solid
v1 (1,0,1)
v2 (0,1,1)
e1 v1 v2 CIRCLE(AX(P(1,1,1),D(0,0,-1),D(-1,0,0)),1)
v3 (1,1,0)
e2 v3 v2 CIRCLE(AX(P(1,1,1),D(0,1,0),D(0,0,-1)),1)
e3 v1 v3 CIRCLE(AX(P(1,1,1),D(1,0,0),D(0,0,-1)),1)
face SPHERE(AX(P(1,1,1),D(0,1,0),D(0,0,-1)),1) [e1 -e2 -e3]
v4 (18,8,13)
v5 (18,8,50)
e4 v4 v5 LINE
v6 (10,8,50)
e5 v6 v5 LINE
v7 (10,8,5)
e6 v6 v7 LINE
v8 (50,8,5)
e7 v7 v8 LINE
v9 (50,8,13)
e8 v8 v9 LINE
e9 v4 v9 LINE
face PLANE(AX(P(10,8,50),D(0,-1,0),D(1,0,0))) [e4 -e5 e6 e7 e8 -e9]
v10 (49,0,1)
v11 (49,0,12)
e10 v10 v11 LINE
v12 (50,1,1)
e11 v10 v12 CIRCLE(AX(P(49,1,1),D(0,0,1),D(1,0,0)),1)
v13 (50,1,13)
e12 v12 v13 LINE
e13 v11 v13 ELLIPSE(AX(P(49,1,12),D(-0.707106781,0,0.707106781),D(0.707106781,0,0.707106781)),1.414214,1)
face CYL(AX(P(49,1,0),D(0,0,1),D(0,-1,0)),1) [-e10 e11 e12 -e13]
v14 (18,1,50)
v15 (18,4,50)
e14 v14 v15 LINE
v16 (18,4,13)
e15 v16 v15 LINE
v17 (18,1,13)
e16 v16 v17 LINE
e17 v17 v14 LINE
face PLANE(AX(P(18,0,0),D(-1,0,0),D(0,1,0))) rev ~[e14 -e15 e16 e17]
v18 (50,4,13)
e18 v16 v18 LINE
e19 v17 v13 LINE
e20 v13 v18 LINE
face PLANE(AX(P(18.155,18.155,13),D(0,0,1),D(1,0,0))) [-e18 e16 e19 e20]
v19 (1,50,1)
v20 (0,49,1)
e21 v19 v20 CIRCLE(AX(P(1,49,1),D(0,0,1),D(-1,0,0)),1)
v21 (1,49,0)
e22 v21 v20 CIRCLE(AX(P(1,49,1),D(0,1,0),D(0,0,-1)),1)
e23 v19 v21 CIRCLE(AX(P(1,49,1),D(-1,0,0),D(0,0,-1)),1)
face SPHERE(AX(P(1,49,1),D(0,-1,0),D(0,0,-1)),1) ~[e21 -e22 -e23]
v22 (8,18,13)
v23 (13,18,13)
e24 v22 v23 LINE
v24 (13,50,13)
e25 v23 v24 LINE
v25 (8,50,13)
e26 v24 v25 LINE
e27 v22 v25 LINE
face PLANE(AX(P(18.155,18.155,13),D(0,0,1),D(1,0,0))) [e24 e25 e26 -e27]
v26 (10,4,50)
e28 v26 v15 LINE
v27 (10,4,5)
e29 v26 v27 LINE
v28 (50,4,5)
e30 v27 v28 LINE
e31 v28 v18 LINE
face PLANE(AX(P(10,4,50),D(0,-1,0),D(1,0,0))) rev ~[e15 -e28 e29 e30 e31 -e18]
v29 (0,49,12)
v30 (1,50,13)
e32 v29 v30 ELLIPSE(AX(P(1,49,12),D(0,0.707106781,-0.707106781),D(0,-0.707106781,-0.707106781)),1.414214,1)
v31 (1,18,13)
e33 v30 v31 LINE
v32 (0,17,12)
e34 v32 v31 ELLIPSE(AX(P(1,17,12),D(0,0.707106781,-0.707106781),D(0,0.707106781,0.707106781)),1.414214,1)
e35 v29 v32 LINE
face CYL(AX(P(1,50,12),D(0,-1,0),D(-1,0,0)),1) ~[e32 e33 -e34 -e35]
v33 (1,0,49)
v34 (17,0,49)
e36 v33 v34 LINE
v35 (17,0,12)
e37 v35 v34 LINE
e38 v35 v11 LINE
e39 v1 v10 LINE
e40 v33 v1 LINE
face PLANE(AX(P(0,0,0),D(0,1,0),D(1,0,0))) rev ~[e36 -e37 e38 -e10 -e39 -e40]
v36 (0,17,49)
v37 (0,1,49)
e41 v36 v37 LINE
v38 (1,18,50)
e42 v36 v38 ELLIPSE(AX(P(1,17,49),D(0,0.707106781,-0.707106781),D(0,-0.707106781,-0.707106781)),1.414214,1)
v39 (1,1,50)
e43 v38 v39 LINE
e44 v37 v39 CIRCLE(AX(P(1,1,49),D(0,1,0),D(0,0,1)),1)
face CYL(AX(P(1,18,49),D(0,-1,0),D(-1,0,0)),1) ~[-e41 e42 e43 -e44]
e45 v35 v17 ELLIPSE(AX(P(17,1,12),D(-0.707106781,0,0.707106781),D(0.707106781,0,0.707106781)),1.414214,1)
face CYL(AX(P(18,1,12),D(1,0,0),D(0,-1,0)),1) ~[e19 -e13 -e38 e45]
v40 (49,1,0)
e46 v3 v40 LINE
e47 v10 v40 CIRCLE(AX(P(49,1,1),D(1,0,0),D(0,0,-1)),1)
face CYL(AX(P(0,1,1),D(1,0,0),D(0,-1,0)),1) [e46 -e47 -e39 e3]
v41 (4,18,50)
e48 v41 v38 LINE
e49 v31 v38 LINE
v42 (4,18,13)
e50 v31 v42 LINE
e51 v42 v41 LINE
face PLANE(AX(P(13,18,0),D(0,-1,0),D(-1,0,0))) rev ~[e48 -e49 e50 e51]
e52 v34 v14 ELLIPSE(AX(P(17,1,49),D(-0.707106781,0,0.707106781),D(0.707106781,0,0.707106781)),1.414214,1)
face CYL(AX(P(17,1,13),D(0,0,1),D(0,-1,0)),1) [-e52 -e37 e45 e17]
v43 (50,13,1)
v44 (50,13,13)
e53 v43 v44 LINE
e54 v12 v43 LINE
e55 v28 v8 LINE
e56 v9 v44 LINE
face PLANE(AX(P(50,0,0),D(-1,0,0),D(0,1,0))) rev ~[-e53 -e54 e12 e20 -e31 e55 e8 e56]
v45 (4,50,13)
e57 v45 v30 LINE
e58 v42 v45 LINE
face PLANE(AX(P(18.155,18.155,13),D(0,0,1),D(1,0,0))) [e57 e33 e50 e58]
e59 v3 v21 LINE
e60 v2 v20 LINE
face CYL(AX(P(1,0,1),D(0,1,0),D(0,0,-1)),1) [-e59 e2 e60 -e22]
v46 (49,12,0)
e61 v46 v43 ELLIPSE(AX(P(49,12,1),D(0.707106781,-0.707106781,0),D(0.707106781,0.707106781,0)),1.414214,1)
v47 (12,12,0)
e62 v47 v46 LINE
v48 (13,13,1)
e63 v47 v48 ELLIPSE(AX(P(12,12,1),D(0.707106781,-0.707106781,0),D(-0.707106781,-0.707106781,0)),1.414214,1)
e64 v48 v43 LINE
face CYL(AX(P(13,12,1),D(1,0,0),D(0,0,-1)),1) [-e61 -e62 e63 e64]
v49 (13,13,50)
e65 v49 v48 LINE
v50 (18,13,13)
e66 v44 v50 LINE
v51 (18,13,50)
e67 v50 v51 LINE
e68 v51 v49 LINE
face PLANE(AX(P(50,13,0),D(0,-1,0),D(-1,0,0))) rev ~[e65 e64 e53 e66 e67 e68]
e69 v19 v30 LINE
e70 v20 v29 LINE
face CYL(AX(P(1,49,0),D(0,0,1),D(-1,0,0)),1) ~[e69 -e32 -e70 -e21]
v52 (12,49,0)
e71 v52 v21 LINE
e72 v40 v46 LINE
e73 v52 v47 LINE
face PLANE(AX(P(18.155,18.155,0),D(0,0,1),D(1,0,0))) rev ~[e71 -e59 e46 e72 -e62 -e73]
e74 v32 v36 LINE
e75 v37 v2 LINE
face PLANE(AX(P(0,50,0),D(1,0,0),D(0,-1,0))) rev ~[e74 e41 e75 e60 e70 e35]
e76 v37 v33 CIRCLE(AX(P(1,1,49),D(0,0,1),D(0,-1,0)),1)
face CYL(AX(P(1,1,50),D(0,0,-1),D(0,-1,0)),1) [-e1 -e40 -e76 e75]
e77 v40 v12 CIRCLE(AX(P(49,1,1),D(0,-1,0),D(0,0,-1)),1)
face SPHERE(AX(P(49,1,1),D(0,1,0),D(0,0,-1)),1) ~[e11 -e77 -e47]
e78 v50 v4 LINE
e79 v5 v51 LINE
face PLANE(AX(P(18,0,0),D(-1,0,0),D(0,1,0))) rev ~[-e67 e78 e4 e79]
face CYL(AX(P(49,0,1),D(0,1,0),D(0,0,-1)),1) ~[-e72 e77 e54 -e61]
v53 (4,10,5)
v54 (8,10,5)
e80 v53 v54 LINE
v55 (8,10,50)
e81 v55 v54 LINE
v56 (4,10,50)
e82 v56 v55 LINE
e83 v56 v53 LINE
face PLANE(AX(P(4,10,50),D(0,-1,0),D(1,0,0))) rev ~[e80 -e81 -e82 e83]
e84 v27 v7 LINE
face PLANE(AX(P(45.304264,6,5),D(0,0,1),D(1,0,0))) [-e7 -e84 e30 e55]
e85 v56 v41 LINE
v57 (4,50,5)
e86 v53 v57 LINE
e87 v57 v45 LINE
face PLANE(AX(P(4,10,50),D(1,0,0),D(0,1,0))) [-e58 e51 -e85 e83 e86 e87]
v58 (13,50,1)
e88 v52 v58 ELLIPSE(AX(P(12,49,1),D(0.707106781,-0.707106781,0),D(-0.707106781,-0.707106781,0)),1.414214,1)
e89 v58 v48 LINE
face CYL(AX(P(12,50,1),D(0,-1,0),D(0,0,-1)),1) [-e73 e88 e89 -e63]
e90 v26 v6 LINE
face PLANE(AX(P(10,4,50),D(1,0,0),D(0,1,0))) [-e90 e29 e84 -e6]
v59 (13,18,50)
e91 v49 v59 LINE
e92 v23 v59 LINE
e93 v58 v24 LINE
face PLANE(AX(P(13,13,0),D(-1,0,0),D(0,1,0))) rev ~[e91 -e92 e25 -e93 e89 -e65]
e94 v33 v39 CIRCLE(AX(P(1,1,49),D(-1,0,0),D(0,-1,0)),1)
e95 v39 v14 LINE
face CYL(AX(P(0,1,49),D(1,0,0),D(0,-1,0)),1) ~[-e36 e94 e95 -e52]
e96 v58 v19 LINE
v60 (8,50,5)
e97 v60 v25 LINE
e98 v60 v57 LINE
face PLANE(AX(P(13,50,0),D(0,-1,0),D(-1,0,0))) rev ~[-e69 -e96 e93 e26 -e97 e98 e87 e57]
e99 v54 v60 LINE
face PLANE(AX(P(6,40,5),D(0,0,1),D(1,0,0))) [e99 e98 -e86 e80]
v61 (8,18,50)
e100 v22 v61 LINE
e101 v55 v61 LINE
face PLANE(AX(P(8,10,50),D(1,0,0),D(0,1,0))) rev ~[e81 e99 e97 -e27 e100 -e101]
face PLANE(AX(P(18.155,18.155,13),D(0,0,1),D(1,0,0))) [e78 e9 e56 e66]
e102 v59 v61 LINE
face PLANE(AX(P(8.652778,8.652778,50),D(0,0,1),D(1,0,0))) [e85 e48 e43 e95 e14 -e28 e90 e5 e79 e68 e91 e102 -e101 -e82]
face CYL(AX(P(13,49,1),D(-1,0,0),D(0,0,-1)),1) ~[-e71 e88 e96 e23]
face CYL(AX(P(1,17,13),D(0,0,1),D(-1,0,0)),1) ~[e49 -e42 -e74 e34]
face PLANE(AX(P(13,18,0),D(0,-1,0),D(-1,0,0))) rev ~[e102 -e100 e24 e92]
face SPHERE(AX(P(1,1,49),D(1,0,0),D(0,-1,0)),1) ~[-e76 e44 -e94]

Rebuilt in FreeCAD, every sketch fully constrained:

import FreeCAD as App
import Part
import Sketcher

V = App.Vector
Q = App.Units.Quantity


def edges_at(feature, points):
    """Names of the edges that pass closest to the given points."""
    edges = feature.Shape.Edges
    near = lambda p: min(range(len(edges)), key=lambda i: edges[i].distToShape(Part.Vertex(*p))[0])
    return sorted({f"Edge{near(p) + 1}" for p in points})

doc = App.newDocument("Part")
params = doc.addObject("Spreadsheet::Sheet", "Params")
for row, (alias, value) in enumerate([
    ("sketch1_width", "50 mm"),
    ("sketch1_width2", "37 mm"),
    ("pad1_length", "13 mm"),
    ("sketch2_width", "18 mm"),
    ("sketch2_width2", "5 mm"),
    ("pad2_length", "50 mm"),
    ("sketch3_width", "4 mm"),
    ("sketch3_height", "60 mm"),
    ("pocket1_length", "45 mm"),
    ("fillet_radius", "1 mm"),
], start=1):
    params.set(f"A{row}", alias)
    params.set(f"B{row}", "=" + value)
    params.setAlias(f"B{row}", alias)

body = doc.addObject("PartDesign::Body", "Body")

sketch1 = doc.addObject("Sketcher::SketchObject", "Sketch")
body.addObject(sketch1)
sketch1.AttachmentSupport = (doc.XY_Plane, [""])
sketch1.MapMode = "FlatFace"
sketch1.addGeometry(Part.LineSegment(V(0, 0, 0), V(50, 0, 0)), False)
sketch1.addGeometry(Part.LineSegment(V(50, 0, 0), V(50, 13, 0)), False)
sketch1.addGeometry(Part.LineSegment(V(50, 13, 0), V(13, 13, 0)), False)
sketch1.addGeometry(Part.LineSegment(V(13, 13, 0), V(13, 50, 0)), False)
sketch1.addGeometry(Part.LineSegment(V(13, 50, 0), V(0, 50, 0)), False)
sketch1.addGeometry(Part.LineSegment(V(0, 50, 0), V(0, 0, 0)), False)
sketch1.addConstraint(Sketcher.Constraint("Coincident", 0, 2, 1, 1))
sketch1.addConstraint(Sketcher.Constraint("Coincident", 1, 2, 2, 1))
sketch1.addConstraint(Sketcher.Constraint("Coincident", 2, 2, 3, 1))
sketch1.addConstraint(Sketcher.Constraint("Coincident", 3, 2, 4, 1))
sketch1.addConstraint(Sketcher.Constraint("Coincident", 4, 2, 5, 1))
sketch1.addConstraint(Sketcher.Constraint("Coincident", 5, 2, 0, 1))
sketch1.addConstraint(Sketcher.Constraint("Horizontal", 0))
sketch1.addConstraint(Sketcher.Constraint("Vertical", 1))
sketch1.addConstraint(Sketcher.Constraint("Horizontal", 2))
sketch1.addConstraint(Sketcher.Constraint("Vertical", 3))
sketch1.addConstraint(Sketcher.Constraint("Horizontal", 4))
sketch1.addConstraint(Sketcher.Constraint("Vertical", 5))
sketch1.addConstraint(Sketcher.Constraint("Coincident", 5, 2, -1, 1))
sketch1.addConstraint(Sketcher.Constraint("Equal", 4, 1))
sketch1.addConstraint(Sketcher.Constraint("Equal", 2, 3))
sketch1.addConstraint(Sketcher.Constraint("DistanceX", 0, 1, 0, 2, Q("50 mm")))
sketch1.addConstraint(Sketcher.Constraint("DistanceX", 2, 2, 2, 1, Q("37 mm")))
sketch1.setExpression("Constraints[15]", "Params.sketch1_width")
sketch1.setExpression("Constraints[16]", "Params.sketch1_width2")
pad1 = doc.addObject("PartDesign::Pad", "Pad")
body.addObject(pad1)
pad1.Profile = sketch1
pad1.setExpression("Length", "Params.pad1_length")

sketch2 = doc.addObject("Sketcher::SketchObject", "Sketch001")
body.addObject(sketch2)
sketch2.AttachmentSupport = (doc.XY_Plane, [""])
sketch2.MapMode = "FlatFace"
sketch2.addGeometry(Part.LineSegment(V(0, 0, 0), V(18, 0, 0)), False)
sketch2.addGeometry(Part.LineSegment(V(18, 0, 0), V(18, 13, 0)), False)
sketch2.addGeometry(Part.LineSegment(V(18, 13, 0), V(13, 13, 0)), False)
sketch2.addGeometry(Part.LineSegment(V(13, 13, 0), V(13, 18, 0)), False)
sketch2.addGeometry(Part.LineSegment(V(13, 18, 0), V(0, 18, 0)), False)
sketch2.addGeometry(Part.LineSegment(V(0, 18, 0), V(0, 0, 0)), False)
sketch2.addConstraint(Sketcher.Constraint("Coincident", 0, 2, 1, 1))
sketch2.addConstraint(Sketcher.Constraint("Coincident", 1, 2, 2, 1))
sketch2.addConstraint(Sketcher.Constraint("Coincident", 2, 2, 3, 1))
sketch2.addConstraint(Sketcher.Constraint("Coincident", 3, 2, 4, 1))
sketch2.addConstraint(Sketcher.Constraint("Coincident", 4, 2, 5, 1))
sketch2.addConstraint(Sketcher.Constraint("Coincident", 5, 2, 0, 1))
sketch2.addConstraint(Sketcher.Constraint("Horizontal", 0))
sketch2.addConstraint(Sketcher.Constraint("Vertical", 1))
sketch2.addConstraint(Sketcher.Constraint("Horizontal", 2))
sketch2.addConstraint(Sketcher.Constraint("Vertical", 3))
sketch2.addConstraint(Sketcher.Constraint("Horizontal", 4))
sketch2.addConstraint(Sketcher.Constraint("Vertical", 5))
sketch2.addConstraint(Sketcher.Constraint("Coincident", 5, 2, -1, 1))
sketch2.addConstraint(Sketcher.Constraint("Equal", 4, 1))
sketch2.addConstraint(Sketcher.Constraint("Equal", 2, 3))
sketch2.addConstraint(Sketcher.Constraint("DistanceX", 0, 1, 0, 2, Q("18 mm")))
sketch2.addConstraint(Sketcher.Constraint("DistanceX", 2, 2, 2, 1, Q("5 mm")))
sketch2.setExpression("Constraints[15]", "Params.sketch2_width")
sketch2.setExpression("Constraints[16]", "Params.sketch2_width2")
pad2 = doc.addObject("PartDesign::Pad", "Pad001")
body.addObject(pad2)
pad2.Profile = sketch2
pad2.setExpression("Length", "Params.pad2_length")

sketch3 = doc.addObject("Sketcher::SketchObject", "Sketch002")
body.addObject(sketch3)
sketch3.AttachmentSupport = (doc.XY_Plane, [""])
sketch3.MapMode = "FlatFace"
sketch3.AttachmentOffset = App.Placement(V(0, 0, 50), App.Rotation())
sketch3.addGeometry(Part.LineSegment(V(10, 8, 0), V(10, 4, 0)), False)
sketch3.addGeometry(Part.LineSegment(V(10, 4, 0), V(80.6, 4, 0)), False)
sketch3.addGeometry(Part.LineSegment(V(80.6, 4, 0), V(80.6, 8, 0)), False)
sketch3.addGeometry(Part.LineSegment(V(80.6, 8, 0), V(10, 8, 0)), False)
sketch3.addGeometry(Part.LineSegment(V(4, 70, 0), V(4, 10, 0)), False)
sketch3.addGeometry(Part.LineSegment(V(4, 10, 0), V(8, 10, 0)), False)
sketch3.addGeometry(Part.LineSegment(V(8, 10, 0), V(8, 70, 0)), False)
sketch3.addGeometry(Part.LineSegment(V(8, 70, 0), V(4, 70, 0)), False)
sketch3.addConstraint(Sketcher.Constraint("Coincident", 0, 2, 1, 1))
sketch3.addConstraint(Sketcher.Constraint("Coincident", 1, 2, 2, 1))
sketch3.addConstraint(Sketcher.Constraint("Coincident", 2, 2, 3, 1))
sketch3.addConstraint(Sketcher.Constraint("Coincident", 3, 2, 0, 1))
sketch3.addConstraint(Sketcher.Constraint("Coincident", 4, 2, 5, 1))
sketch3.addConstraint(Sketcher.Constraint("Coincident", 5, 2, 6, 1))
sketch3.addConstraint(Sketcher.Constraint("Coincident", 6, 2, 7, 1))
sketch3.addConstraint(Sketcher.Constraint("Coincident", 7, 2, 4, 1))
sketch3.addConstraint(Sketcher.Constraint("Vertical", 0))
sketch3.addConstraint(Sketcher.Constraint("Horizontal", 1))
sketch3.addConstraint(Sketcher.Constraint("Vertical", 2))
sketch3.addConstraint(Sketcher.Constraint("Horizontal", 3))
sketch3.addConstraint(Sketcher.Constraint("Vertical", 4))
sketch3.addConstraint(Sketcher.Constraint("Horizontal", 5))
sketch3.addConstraint(Sketcher.Constraint("Vertical", 6))
sketch3.addConstraint(Sketcher.Constraint("Horizontal", 7))
sketch3.addConstraint(Sketcher.Constraint("Equal", 7, 0))
sketch3.addConstraint(Sketcher.Constraint("DistanceX", 5, 1, 5, 2, Q("4 mm")))
sketch3.addConstraint(Sketcher.Constraint("DistanceY", 4, 2, 4, 1, Q("60 mm")))
sketch3.addConstraint(Sketcher.Constraint("DistanceX", -1, 1, 0, 2, Q("10 mm")))
sketch3.addConstraint(Sketcher.Constraint("DistanceY", -1, 1, 0, 2, Q("4 mm")))
sketch3.addConstraint(Sketcher.Constraint("DistanceX", -1, 1, 4, 2, Q("4 mm")))
sketch3.addConstraint(Sketcher.Constraint("DistanceY", -1, 1, 4, 2, Q("10 mm")))
sketch3.addConstraint(Sketcher.Constraint("DistanceX", 1, 1, 1, 2, Q("70.608528 mm")))
sketch3.setExpression("Constraints[17]", "Params.sketch3_width")
sketch3.setExpression("Constraints[18]", "Params.sketch3_height")
pocket1 = doc.addObject("PartDesign::Pocket", "Pocket")
body.addObject(pocket1)
pocket1.Profile = sketch3
pocket1.setExpression("Length", "Params.pocket1_length")
doc.recompute()

fillet = doc.addObject("PartDesign::Fillet", "Fillet")
body.addObject(fillet)
fillet.Base = (pocket1, edges_at(pocket1, [
    (0, 25, 0),
    (6.5, 50, 0),
    (13, 31.5, 0),
    (31.5, 13, 0),
    (50, 6.5, 0),
    (25, 0, 0),
    (50, 0, 6.5),
    (34, 0, 13),
    (18, 0, 31.5),
    (9, 0, 50),
    (0, 0, 25),
    (0, 9, 50),
    (0, 18, 31.5),
    (0, 34, 13),
    (0, 50, 6.5),
]))
fillet.setExpression("Radius", "Params.fillet_radius")

doc.recompute()
